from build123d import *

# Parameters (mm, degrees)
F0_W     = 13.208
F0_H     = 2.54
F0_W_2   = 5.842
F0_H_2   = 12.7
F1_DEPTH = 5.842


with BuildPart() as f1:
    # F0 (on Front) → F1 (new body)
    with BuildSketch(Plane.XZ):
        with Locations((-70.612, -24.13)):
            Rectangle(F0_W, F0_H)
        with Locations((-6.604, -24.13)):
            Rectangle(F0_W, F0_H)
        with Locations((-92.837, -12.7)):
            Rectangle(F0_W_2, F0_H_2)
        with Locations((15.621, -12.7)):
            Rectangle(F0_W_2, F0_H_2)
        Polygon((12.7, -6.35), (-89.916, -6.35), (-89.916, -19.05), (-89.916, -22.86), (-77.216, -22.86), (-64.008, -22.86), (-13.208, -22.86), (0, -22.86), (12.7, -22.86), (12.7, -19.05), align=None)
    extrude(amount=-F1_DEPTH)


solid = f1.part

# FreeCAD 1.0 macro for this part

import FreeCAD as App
import Part
import Sketcher

V = App.Vector
Q = App.Units.Quantity


def add_polygon(sketch, points):
    """Adds a closed chain of lines whose ends are joined by coincident constraints."""
    first, n = sketch.GeometryCount, len(points)
    for a, b in zip(points, points[1:] + points[:1]):
        sketch.addGeometry(Part.LineSegment(App.Vector(*a, 0), App.Vector(*b, 0)), False)
    for i in range(n):
        sketch.addConstraint(Sketcher.Constraint("Coincident", first + i, 2, first + (i + 1) % n, 1))

doc = App.newDocument("Part")
body = doc.addObject("PartDesign::Body", "Body")

# Sketch on XZ plane
sketch1 = doc.addObject("Sketcher::SketchObject", "Sketch")
body.addObject(sketch1)
sketch1.AttachmentSupport = (doc.XZ_Plane, [""])
sketch1.MapMode = "FlatFace"
add_polygon(sketch1, [(-77.2, -22.9), (-77.2, -25.4), (-64, -25.4), (-64, -22.9), (-13.2, -22.9), (-13.2, -25.4), (0, -25.4), (0, -22.9), (12.7, -22.9), (12.7, -19.1), (18.5, -19.1), (18.5, -6.3), (-95.8, -6.3), (-95.8, -19.1), (-89.9, -19.1), (-89.9, -22.9)])  # lines 0-15
sketch1.addConstraint([
    Sketcher.Constraint("Vertical", 0),
    Sketcher.Constraint("Horizontal", 1),
    Sketcher.Constraint("Vertical", 2),
    Sketcher.Constraint("Horizontal", 3),
    Sketcher.Constraint("Vertical", 4),
    Sketcher.Constraint("Horizontal", 5),
    Sketcher.Constraint("Vertical", 6),
    Sketcher.Constraint("Horizontal", 7),
    Sketcher.Constraint("Vertical", 8),
    Sketcher.Constraint("Horizontal", 9),
    Sketcher.Constraint("Vertical", 10),
    Sketcher.Constraint("Horizontal", 11),
    Sketcher.Constraint("Vertical", 12),
    Sketcher.Constraint("Horizontal", 13),
    Sketcher.Constraint("Vertical", 14),
    Sketcher.Constraint("Horizontal", 15),
    Sketcher.Constraint("PointOnObject", 5, 2, -2),
    Sketcher.Constraint("Horizontal", 1, 2, 4, 2),
    Sketcher.Constraint("Horizontal", 3, 2, 6, 2),
    Sketcher.Constraint("Horizontal", 9, 2, 12, 2),
    Sketcher.Constraint("Horizontal", 7, 2, 14, 2),
    Sketcher.Constraint("Equal", 1, 5),
    Sketcher.Constraint("Equal", 9, 13),
    Sketcher.Constraint("Equal", 7, 15),
    Sketcher.Constraint("Equal", 15, 10),
    Sketcher.Constraint("DistanceX", 3, 1, 3, 2, Q("2 in")),
    Sketcher.Constraint("DistanceX", 7, 1, 7, 2, Q("0.5 in")),
    Sketcher.Constraint("DistanceX", 11, 2, 11, 1, Q("4.5 in")),
    Sketcher.Constraint("DistanceY", 0, 2, 0, 1, Q("0.1 in")),
    Sketcher.Constraint("DistanceY", 0, 2, -1, 1, Q("1 in")),
    Sketcher.Constraint("DistanceX", 1, 1, 1, 2, Q("0.52 in")),
    Sketcher.Constraint("DistanceY", 8, 1, 8, 2, Q("0.15 in")),
])
pad1 = doc.addObject("PartDesign::Pad", "Pad")
body.addObject(pad1)
pad1.Profile = sketch1
pad1.Length = Q("0.23 in")
pad1.Reversed = True

doc.recompute()
